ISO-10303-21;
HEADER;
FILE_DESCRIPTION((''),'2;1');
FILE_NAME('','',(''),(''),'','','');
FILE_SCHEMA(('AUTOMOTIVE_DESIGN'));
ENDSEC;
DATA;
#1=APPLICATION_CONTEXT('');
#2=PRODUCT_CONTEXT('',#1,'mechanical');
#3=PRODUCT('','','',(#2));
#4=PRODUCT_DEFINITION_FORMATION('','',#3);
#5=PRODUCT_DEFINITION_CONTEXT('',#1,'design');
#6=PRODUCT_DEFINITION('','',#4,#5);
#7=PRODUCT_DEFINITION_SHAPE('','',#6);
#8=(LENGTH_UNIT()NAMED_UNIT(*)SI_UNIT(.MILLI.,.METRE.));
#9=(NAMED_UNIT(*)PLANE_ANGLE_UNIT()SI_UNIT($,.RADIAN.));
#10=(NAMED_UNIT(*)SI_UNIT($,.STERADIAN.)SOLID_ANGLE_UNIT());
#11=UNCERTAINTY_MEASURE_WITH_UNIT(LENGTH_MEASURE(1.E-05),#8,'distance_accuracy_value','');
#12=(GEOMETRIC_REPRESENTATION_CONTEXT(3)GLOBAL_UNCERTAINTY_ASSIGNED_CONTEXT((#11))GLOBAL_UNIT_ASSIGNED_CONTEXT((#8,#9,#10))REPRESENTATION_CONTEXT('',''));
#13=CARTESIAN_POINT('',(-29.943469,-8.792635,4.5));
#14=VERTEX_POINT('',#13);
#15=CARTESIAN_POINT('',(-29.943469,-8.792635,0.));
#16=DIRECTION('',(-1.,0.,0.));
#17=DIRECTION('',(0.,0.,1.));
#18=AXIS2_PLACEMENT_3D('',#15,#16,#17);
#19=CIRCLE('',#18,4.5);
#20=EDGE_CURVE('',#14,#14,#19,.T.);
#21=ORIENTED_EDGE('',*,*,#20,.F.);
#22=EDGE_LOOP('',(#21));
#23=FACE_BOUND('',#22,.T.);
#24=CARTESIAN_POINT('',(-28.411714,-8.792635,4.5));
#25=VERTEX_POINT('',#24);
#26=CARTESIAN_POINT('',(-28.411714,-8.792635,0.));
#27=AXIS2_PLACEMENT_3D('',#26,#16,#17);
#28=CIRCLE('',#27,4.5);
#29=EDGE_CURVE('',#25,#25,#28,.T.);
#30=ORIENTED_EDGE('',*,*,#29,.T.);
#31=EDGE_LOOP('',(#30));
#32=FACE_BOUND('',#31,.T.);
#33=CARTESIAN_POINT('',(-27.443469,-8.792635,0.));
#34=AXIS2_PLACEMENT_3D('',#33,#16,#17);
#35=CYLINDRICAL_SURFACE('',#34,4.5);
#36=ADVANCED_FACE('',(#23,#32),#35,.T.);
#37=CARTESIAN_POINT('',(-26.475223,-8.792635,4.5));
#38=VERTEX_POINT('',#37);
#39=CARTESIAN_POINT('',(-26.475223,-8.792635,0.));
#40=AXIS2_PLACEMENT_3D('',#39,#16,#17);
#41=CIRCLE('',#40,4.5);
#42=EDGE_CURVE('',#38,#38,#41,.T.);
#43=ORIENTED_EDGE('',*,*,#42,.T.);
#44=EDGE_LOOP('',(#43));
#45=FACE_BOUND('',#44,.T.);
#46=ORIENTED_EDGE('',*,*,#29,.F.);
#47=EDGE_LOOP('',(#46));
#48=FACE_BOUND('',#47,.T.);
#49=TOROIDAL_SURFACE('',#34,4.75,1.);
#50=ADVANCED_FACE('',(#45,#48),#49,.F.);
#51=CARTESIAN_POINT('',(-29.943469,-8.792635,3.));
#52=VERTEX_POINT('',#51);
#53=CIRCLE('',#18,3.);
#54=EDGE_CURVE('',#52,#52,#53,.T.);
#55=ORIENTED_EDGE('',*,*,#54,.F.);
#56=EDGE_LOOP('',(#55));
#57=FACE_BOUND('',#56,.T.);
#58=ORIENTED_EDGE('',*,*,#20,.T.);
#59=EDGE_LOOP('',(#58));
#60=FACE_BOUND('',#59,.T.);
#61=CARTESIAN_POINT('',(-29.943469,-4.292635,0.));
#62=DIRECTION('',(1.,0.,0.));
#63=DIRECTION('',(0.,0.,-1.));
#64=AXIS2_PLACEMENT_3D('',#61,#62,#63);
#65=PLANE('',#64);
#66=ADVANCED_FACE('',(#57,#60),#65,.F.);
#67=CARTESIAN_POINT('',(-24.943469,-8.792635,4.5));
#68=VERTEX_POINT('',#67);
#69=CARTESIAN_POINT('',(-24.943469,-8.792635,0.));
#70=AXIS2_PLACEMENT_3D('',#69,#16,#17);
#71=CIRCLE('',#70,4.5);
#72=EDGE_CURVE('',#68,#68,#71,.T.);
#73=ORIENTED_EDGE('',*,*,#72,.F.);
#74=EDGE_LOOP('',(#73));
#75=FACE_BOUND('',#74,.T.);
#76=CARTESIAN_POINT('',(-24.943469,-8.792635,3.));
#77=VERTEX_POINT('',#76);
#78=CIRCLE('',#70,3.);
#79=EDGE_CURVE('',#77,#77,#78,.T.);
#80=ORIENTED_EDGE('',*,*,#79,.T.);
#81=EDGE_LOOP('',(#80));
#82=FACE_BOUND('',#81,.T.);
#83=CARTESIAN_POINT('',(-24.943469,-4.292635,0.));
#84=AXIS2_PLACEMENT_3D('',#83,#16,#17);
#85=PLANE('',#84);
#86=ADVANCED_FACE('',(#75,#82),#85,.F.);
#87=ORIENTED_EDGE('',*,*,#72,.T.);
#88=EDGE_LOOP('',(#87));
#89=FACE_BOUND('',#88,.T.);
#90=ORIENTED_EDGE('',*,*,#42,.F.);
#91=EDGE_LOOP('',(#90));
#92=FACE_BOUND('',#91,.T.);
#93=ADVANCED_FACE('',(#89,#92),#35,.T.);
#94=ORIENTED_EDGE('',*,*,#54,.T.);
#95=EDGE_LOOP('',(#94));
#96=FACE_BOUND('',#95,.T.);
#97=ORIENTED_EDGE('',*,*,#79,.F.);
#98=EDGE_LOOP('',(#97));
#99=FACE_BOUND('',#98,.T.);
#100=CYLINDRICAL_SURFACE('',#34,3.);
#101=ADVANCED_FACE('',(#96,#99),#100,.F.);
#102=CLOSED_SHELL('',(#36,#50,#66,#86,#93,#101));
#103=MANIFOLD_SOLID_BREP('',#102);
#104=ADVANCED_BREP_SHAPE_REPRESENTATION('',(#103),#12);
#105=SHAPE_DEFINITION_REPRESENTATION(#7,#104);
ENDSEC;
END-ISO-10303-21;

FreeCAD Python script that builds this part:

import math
import FreeCAD as App
import Part
import Sketcher
from FreeCAD import Vector
Q = App.Units.Quantity

doc = App.newDocument("Part")
body = doc.addObject("PartDesign::Body", "Body")

sketch1 = body.newObject("Sketcher::SketchObject", "Sketch")
sketch1.AttachmentSupport = (doc.getObject("XY_Plane"), [""])
sketch1.MapMode = "FlatFace"
sketch1.addGeometry(Part.LineSegment(Vector(-24.9, -4.3, 0), Vector(-26.5, -4.3, 0)), False)
sketch1.addGeometry(Part.ArcOfCircle(Part.Circle(Vector(-27.4, -4, 0), Vector(0, 0, 1), 1), math.radians(-166), math.radians(-14)), False)
sketch1.addGeometry(Part.LineSegment(Vector(-28.4, -4.3, 0), Vector(-29.9, -4.3, 0)), False)
sketch1.addGeometry(Part.LineSegment(Vector(-29.9, -4.3, 0), Vector(-29.9, -5.8, 0)), False)
sketch1.addGeometry(Part.LineSegment(Vector(-29.9, -5.8, 0), Vector(-24.9, -5.8, 0)), False)
sketch1.addGeometry(Part.LineSegment(Vector(-24.9, -5.8, 0), Vector(-24.9, -4.3, 0)), False)
sketch1.addGeometry(Part.LineSegment(Vector(-29.9, -8.8, 0), Vector(-24.9, -8.8, 0)), True)
sketch1.addConstraint(Sketcher.Constraint("Coincident", 0, 2, 1, 2))
sketch1.addConstraint(Sketcher.Constraint("Coincident", 1, 1, 2, 1))
sketch1.addConstraint(Sketcher.Constraint("Coincident", 2, 2, 3, 1))
sketch1.addConstraint(Sketcher.Constraint("Coincident", 3, 2, 4, 1))
sketch1.addConstraint(Sketcher.Constraint("Coincident", 4, 2, 5, 1))
sketch1.addConstraint(Sketcher.Constraint("Coincident", 5, 2, 0, 1))
sketch1.addConstraint(Sketcher.Constraint("Horizontal", 0))
sketch1.addConstraint(Sketcher.Constraint("Horizontal", 2))
sketch1.addConstraint(Sketcher.Constraint("Vertical", 3))
sketch1.addConstraint(Sketcher.Constraint("Horizontal", 4))
sketch1.addConstraint(Sketcher.Constraint("Vertical", 5))
sketch1.addConstraint(Sketcher.Constraint("Horizontal", 6))
sketch1.addConstraint(Sketcher.Constraint("Horizontal", 0, 2, 1, 1))
sketch1.addConstraint(Sketcher.Constraint("Vertical", 3, 2, 6, 1))
sketch1.addConstraint(Sketcher.Constraint("Vertical", 5, 2, 6, 2))
sketch1.addConstraint(Sketcher.Constraint("Equal", 0, 2))
sketch1.addConstraint(Sketcher.Constraint("Radius", 1, Q("1 mm")))
sketch1.addConstraint(Sketcher.Constraint("DistanceX", 4, 1, 4, 2, Q("5 mm")))
sketch1.addConstraint(Sketcher.Constraint("DistanceY", 3, 2, 3, 1, Q("1.5 mm")))
sketch1.addConstraint(Sketcher.Constraint("DistanceY", 6, 1, 3, 2, Q("3 mm")))
sketch1.addConstraint(Sketcher.Constraint("DistanceY", 0, 2, 1, 3, Q("0.25 mm")))
sketch1.addConstraint(Sketcher.Constraint("DistanceX", 1, 3, -1, 1, Q("27.443469 mm")))
sketch1.addConstraint(Sketcher.Constraint("DistanceY", 1, 3, -1, 1, Q("4.042635 mm")))
revolution = body.newObject("PartDesign::Revolution", "Revolution")
revolution.Profile = sketch1
revolution.ReferenceAxis = (sketch1, ["Axis0"])
revolution.Angle = 360

doc.recompute()
